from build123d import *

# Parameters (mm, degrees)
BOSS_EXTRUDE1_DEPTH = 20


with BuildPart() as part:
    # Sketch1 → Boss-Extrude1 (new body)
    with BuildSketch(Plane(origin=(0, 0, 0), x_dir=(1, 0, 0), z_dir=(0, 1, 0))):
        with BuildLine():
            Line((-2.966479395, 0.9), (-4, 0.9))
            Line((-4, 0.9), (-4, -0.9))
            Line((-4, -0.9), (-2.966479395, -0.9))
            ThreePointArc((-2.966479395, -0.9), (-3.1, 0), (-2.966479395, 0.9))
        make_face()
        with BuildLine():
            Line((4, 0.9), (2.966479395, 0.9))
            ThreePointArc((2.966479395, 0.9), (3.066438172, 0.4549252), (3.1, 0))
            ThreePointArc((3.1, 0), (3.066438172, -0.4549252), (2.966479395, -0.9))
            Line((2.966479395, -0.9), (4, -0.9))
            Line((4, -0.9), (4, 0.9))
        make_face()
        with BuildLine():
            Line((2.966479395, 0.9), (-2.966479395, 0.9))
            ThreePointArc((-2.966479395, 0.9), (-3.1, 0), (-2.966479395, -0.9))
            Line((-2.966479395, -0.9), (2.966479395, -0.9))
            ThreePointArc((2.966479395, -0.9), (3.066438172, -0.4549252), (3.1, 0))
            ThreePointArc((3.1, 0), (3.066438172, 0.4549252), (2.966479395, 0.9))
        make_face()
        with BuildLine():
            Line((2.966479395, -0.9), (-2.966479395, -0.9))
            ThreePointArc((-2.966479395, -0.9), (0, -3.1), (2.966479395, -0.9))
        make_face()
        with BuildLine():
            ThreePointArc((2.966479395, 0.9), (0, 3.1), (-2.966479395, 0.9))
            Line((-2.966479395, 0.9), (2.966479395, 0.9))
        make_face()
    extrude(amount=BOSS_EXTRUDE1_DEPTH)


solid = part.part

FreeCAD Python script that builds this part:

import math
import FreeCAD as App
import Part
import Sketcher
from FreeCAD import Vector

doc = App.newDocument("Part")
body = doc.addObject("PartDesign::Body", "Body")

# Sketch on XZ plane
sketch1 = body.newObject("Sketcher::SketchObject", "Sketch")
sketch1.AttachmentSupport = (doc.getObject("XZ_Plane"), [""])
sketch1.MapMode = "FlatFace"
sketch1.addGeometry(Part.LineSegment(Vector(-4, -0.9, 0), Vector(-4, 0.9, 0)), False)
sketch1.addGeometry(Part.LineSegment(Vector(-4, 0.9, 0), Vector(-3, 0.9, 0)), False)
sketch1.addGeometry(Part.ArcOfCircle(Part.Circle(Vector(0, 0, 0), Vector(0, 0, 1), 3.1), math.radians(17), math.radians(163)), False)
sketch1.addGeometry(Part.LineSegment(Vector(3, 0.9, 0), Vector(4, 0.9, 0)), False)
sketch1.addGeometry(Part.LineSegment(Vector(4, 0.9, 0), Vector(4, -0.9, 0)), False)
sketch1.addGeometry(Part.LineSegment(Vector(4, -0.9, 0), Vector(3, -0.9, 0)), False)
sketch1.addGeometry(Part.ArcOfCircle(Part.Circle(Vector(0, 0, 0), Vector(0, 0, 1), 3.1), math.radians(-163), math.radians(-17)), False)
sketch1.addGeometry(Part.LineSegment(Vector(-3, -0.9, 0), Vector(-4, -0.9, 0)), False)
sketch1.addConstraint(Sketcher.Constraint("Coincident", 0, 2, 1, 1))
sketch1.addConstraint(Sketcher.Constraint("Coincident", 1, 2, 2, 2))
sketch1.addConstraint(Sketcher.Constraint("Coincident", 2, 1, 3, 1))
sketch1.addConstraint(Sketcher.Constraint("Coincident", 3, 2, 4, 1))
sketch1.addConstraint(Sketcher.Constraint("Coincident", 4, 2, 5, 1))
sketch1.addConstraint(Sketcher.Constraint("Coincident", 5, 2, 6, 2))
sketch1.addConstraint(Sketcher.Constraint("Coincident", 6, 1, 7, 1))
sketch1.addConstraint(Sketcher.Constraint("Coincident", 7, 2, 0, 1))
sketch1.addConstraint(Sketcher.Constraint("Vertical", 0))
sketch1.addConstraint(Sketcher.Constraint("Horizontal", 1))
sketch1.addConstraint(Sketcher.Constraint("Horizontal", 3))
sketch1.addConstraint(Sketcher.Constraint("Vertical", 4))
sketch1.addConstraint(Sketcher.Constraint("Horizontal", 5))
sketch1.addConstraint(Sketcher.Constraint("Horizontal", 7))
sketch1.addConstraint(Sketcher.Constraint("Coincident", 2, 3, -1, 1))
sketch1.addConstraint(Sketcher.Constraint("Coincident", 6, 3, -1, 1))
sketch1.addConstraint(Sketcher.Constraint("Equal", 2, 6))
sketch1.addConstraint(Sketcher.Constraint("Symmetric", 0, 2, 4, 2, -1, 1))
sketch1.addConstraint(Sketcher.Constraint("Horizontal", 1, 2, 2, 1))
sketch1.addConstraint(Sketcher.Constraint("Horizontal", 5, 2, 6, 1))
sketch1.addConstraint(Sketcher.Constraint("Radius", 2, 3.1))
sketch1.addConstraint(Sketcher.Constraint("DistanceY", 0, 1, 0, 2, 1.8))
sketch1.addConstraint(Sketcher.Constraint("DistanceX", 0, 2, -1, 1, 4.0))
pad1 = body.newObject("PartDesign::Pad", "Pad")
pad1.Profile = sketch1
pad1.Length = 20
pad1.Reversed = True

doc.recompute()
